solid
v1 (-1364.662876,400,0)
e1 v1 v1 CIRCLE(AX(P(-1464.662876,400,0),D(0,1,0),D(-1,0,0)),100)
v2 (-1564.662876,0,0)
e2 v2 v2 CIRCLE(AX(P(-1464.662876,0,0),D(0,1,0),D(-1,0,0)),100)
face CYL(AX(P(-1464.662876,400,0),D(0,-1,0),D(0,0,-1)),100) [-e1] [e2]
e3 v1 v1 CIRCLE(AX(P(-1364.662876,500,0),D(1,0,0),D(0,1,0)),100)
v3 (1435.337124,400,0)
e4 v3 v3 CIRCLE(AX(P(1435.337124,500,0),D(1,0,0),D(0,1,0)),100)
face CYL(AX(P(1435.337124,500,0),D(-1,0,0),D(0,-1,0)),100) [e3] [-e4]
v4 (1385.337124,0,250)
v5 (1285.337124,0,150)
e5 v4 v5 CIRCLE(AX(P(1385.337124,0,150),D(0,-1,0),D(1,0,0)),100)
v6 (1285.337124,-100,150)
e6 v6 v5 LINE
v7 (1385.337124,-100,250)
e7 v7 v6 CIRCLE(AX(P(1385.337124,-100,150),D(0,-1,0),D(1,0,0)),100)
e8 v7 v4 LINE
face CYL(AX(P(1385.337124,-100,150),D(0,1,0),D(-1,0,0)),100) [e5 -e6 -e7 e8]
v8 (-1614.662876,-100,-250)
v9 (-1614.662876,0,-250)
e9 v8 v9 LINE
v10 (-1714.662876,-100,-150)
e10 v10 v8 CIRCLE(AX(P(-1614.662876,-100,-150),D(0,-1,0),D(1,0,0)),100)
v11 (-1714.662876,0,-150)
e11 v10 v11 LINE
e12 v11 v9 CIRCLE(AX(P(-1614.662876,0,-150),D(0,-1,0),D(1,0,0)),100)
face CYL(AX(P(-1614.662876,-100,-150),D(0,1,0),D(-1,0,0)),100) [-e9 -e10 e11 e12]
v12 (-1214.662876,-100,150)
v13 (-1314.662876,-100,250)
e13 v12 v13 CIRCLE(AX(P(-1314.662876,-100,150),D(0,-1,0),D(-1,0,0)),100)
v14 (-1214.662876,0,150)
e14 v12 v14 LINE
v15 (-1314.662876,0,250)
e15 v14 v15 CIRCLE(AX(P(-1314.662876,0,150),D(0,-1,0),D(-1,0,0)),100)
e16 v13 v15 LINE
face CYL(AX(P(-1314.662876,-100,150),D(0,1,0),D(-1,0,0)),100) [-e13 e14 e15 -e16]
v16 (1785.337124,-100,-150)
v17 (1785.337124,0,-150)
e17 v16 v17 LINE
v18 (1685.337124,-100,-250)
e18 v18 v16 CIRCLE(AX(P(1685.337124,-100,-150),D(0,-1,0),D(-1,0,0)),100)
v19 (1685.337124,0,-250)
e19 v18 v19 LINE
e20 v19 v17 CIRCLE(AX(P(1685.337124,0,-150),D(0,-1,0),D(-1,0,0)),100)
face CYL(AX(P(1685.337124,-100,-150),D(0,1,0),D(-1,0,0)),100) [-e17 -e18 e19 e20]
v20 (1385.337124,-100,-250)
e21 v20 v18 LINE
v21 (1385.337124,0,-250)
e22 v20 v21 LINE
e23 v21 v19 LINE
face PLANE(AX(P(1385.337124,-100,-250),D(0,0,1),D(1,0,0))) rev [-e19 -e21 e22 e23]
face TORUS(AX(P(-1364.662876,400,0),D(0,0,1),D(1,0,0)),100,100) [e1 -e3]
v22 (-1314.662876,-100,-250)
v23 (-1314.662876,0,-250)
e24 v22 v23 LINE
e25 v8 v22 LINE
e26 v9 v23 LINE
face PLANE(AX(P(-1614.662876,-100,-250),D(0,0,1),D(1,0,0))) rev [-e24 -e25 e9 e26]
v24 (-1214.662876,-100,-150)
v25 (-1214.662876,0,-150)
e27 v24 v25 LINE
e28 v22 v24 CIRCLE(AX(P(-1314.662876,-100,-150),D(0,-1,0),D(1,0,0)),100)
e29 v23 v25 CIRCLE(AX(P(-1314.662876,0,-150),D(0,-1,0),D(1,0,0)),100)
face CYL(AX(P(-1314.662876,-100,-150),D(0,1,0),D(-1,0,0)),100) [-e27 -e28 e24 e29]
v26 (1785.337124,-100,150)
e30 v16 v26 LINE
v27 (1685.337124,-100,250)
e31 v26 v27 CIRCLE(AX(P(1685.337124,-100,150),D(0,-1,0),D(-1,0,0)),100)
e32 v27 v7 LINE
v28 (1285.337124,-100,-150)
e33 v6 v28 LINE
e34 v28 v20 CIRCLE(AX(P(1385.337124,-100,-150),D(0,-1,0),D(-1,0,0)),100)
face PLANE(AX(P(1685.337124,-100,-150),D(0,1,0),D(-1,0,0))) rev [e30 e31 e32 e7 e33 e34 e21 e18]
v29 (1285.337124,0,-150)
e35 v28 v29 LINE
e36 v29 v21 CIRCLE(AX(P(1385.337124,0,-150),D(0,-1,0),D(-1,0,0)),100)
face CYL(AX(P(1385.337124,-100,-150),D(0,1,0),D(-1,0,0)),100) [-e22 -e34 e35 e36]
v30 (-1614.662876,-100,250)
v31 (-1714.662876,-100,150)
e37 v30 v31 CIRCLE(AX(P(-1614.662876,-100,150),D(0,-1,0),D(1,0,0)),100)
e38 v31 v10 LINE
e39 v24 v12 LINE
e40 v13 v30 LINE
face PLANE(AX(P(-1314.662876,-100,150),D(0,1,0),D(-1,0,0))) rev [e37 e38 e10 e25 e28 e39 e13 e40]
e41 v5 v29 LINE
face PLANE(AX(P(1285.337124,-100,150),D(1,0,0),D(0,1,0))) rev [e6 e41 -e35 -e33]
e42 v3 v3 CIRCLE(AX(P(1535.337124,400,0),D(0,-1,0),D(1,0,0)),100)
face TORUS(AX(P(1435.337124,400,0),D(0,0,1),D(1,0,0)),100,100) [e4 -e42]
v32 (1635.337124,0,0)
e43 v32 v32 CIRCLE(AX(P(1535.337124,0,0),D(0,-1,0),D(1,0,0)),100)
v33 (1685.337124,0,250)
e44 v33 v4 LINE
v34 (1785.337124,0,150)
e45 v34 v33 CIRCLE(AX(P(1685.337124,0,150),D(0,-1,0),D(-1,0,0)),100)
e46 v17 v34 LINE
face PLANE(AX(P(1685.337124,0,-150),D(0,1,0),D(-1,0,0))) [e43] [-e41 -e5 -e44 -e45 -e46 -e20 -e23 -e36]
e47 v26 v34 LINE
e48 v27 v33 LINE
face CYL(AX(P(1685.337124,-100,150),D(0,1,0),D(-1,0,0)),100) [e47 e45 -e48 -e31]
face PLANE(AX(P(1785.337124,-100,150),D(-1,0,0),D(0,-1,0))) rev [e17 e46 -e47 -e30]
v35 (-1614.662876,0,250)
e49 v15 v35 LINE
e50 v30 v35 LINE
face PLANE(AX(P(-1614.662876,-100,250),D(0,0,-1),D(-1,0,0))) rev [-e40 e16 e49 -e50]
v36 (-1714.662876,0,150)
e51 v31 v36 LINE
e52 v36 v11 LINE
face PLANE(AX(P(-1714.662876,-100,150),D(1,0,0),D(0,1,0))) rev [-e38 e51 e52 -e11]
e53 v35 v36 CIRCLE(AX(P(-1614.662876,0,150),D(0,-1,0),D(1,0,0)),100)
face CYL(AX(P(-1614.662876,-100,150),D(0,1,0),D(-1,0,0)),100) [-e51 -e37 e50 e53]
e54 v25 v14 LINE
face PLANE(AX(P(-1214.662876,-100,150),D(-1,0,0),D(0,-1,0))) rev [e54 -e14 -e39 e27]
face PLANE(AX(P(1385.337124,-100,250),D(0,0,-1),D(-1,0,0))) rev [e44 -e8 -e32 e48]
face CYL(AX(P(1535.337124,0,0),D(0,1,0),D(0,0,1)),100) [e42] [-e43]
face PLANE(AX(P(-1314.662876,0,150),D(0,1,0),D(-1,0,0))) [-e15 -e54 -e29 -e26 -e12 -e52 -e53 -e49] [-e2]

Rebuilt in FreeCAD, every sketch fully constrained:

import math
import FreeCAD as App
import Part
import Sketcher

V = App.Vector
Q = App.Units.Quantity

doc = App.newDocument("Part")
params = doc.addObject("Spreadsheet::Sheet", "Params")
for row, (alias, value) in enumerate([
    ("sketch1_diameter", "200 mm"),
    ("sketch2_radius", "100 mm"),
    ("sketch2_width", "2800 mm"),
    ("sketch2_height", "400 mm"),
    ("sketch3_radius", "100 mm"),
    ("sketch3_width", "300 mm"),
    ("pad1_length", "100 mm"),
], start=1):
    params.set(f"A{row}", alias)
    params.set(f"B{row}", "=" + value)
    params.setAlias(f"B{row}", alias)

body = doc.addObject("PartDesign::Body", "Body")

# Sketch on XZ plane
sketch1 = body.newObject("Sketcher::SketchObject", "Sketch")
sketch1.AttachmentSupport = (doc.getObject("XZ_Plane"), [""])
sketch1.MapMode = "FlatFace"
sketch1.addGeometry(Part.Circle(V(1535.337124, 0, 0), V(0, 0, 1), 100), False)
sketch1.addConstraint(Sketcher.Constraint("PointOnObject", 0, 3, -1))
sketch1.addConstraint(Sketcher.Constraint("Diameter", 0, Q("200 mm")))
sketch1.addConstraint(Sketcher.Constraint("DistanceX", -1, 1, 0, 3, Q("1535.337124 mm")))
sketch1.setExpression("Constraints[1]", "Params.sketch1_diameter")

# Sketch on XY plane
sketch2 = body.newObject("Sketcher::SketchObject", "Sketch001")
sketch2.AttachmentSupport = (doc.getObject("XY_Plane"), [""])
sketch2.MapMode = "FlatFace"
sketch2.addGeometry(Part.LineSegment(V(1535.337124, 0, 0), V(1535.337124, 400, 0)), False)
sketch2.addGeometry(Part.ArcOfCircle(Part.Circle(V(1435.337124, 400, 0), V(0, 0, 1), 100), math.radians(0), math.radians(90)), False)
sketch2.addGeometry(Part.LineSegment(V(1435.337124, 500, 0), V(-1364.662876, 500, 0)), False)
sketch2.addGeometry(Part.ArcOfCircle(Part.Circle(V(-1364.662876, 400, 0), V(0, 0, 1), 100), math.radians(90), math.radians(180)), False)
sketch2.addGeometry(Part.LineSegment(V(-1464.662876, 400, 0), V(-1464.662876, 0, 0)), False)
sketch2.addConstraint(Sketcher.Constraint("Tangent", 0, 2, 1, 1))
sketch2.addConstraint(Sketcher.Constraint("Tangent", 1, 2, 2, 1))
sketch2.addConstraint(Sketcher.Constraint("Tangent", 2, 2, 3, 1))
sketch2.addConstraint(Sketcher.Constraint("Tangent", 3, 2, 4, 1))
sketch2.addConstraint(Sketcher.Constraint("Vertical", 0))
sketch2.addConstraint(Sketcher.Constraint("Horizontal", 2))
sketch2.addConstraint(Sketcher.Constraint("Vertical", 4))
sketch2.addConstraint(Sketcher.Constraint("Equal", 1, 3))
sketch2.addConstraint(Sketcher.Constraint("PointOnObject", 0, 1, -1))
sketch2.addConstraint(Sketcher.Constraint("PointOnObject", 4, 2, -1))
sketch2.addConstraint(Sketcher.Constraint("Radius", 1, Q("100 mm")))
sketch2.addConstraint(Sketcher.Constraint("DistanceX", 2, 2, 2, 1, Q("2800 mm")))
sketch2.addConstraint(Sketcher.Constraint("DistanceY", 0, 1, 0, 2, Q("400 mm")))
sketch2.addConstraint(Sketcher.Constraint("DistanceX", -1, 1, 1, 3, Q("1435.337124 mm")))
sketch2.setExpression("Constraints[10]", "Params.sketch2_radius")
sketch2.setExpression("Constraints[11]", "Params.sketch2_width")
sketch2.setExpression("Constraints[12]", "Params.sketch2_height")
doc.recompute()

additivepipe = body.newObject("PartDesign::AdditivePipe", "AdditivePipe")
additivepipe.Profile = sketch1
additivepipe.Spine = (sketch2, ["Edge1", "Edge2", "Edge3", "Edge4", "Edge5"])

# Sketch on XZ plane
sketch3 = body.newObject("Sketcher::SketchObject", "Sketch002")
sketch3.AttachmentSupport = (doc.getObject("XZ_Plane"), [""])
sketch3.MapMode = "FlatFace"
sketch3.addGeometry(Part.LineSegment(V(-1314.662876, 250, 0), V(-1614.662876, 250, 0)), False)
sketch3.addGeometry(Part.ArcOfCircle(Part.Circle(V(-1614.662876, 150, 0), V(0, 0, 1), 100), math.radians(90), math.radians(180)), False)
sketch3.addGeometry(Part.LineSegment(V(-1714.662876, 150, 0), V(-1714.662876, -150, 0)), False)
sketch3.addGeometry(Part.ArcOfCircle(Part.Circle(V(-1614.662876, -150, 0), V(0, 0, 1), 100), math.radians(-180), math.radians(-90)), False)
sketch3.addGeometry(Part.LineSegment(V(-1614.662876, -250, 0), V(-1314.662876, -250, 0)), False)
sketch3.addGeometry(Part.ArcOfCircle(Part.Circle(V(-1314.662876, -150, 0), V(0, 0, 1), 100), math.radians(-90), math.radians(0)), False)
sketch3.addGeometry(Part.LineSegment(V(-1214.662876, -150, 0), V(-1214.662876, 150, 0)), False)
sketch3.addGeometry(Part.ArcOfCircle(Part.Circle(V(-1314.662876, 150, 0), V(0, 0, 1), 100), math.radians(0), math.radians(90)), False)
sketch3.addGeometry(Part.LineSegment(V(1685.337124, 250, 0), V(1385.337124, 250, 0)), False)
sketch3.addGeometry(Part.ArcOfCircle(Part.Circle(V(1385.337124, 150, 0), V(0, 0, 1), 100), math.radians(90), math.radians(180)), False)
sketch3.addGeometry(Part.LineSegment(V(1285.337124, 150, 0), V(1285.337124, -150, 0)), False)
sketch3.addGeometry(Part.ArcOfCircle(Part.Circle(V(1385.337124, -150, 0), V(0, 0, 1), 100), math.radians(-180), math.radians(-90)), False)
sketch3.addGeometry(Part.LineSegment(V(1385.337124, -250, 0), V(1685.337124, -250, 0)), False)
sketch3.addGeometry(Part.ArcOfCircle(Part.Circle(V(1685.337124, -150, 0), V(0, 0, 1), 100), math.radians(-90), math.radians(0)), False)
sketch3.addGeometry(Part.LineSegment(V(1785.337124, -150, 0), V(1785.337124, 150, 0)), False)
sketch3.addGeometry(Part.ArcOfCircle(Part.Circle(V(1685.337124, 150, 0), V(0, 0, 1), 100), math.radians(0), math.radians(90)), False)
sketch3.addConstraint(Sketcher.Constraint("Tangent", 0, 2, 1, 1))
sketch3.addConstraint(Sketcher.Constraint("Tangent", 1, 2, 2, 1))
sketch3.addConstraint(Sketcher.Constraint("Tangent", 2, 2, 3, 1))
sketch3.addConstraint(Sketcher.Constraint("Tangent", 3, 2, 4, 1))
sketch3.addConstraint(Sketcher.Constraint("Tangent", 4, 2, 5, 1))
sketch3.addConstraint(Sketcher.Constraint("Tangent", 5, 2, 6, 1))
sketch3.addConstraint(Sketcher.Constraint("Tangent", 6, 2, 7, 1))
sketch3.addConstraint(Sketcher.Constraint("Tangent", 7, 2, 0, 1))
sketch3.addConstraint(Sketcher.Constraint("Tangent", 8, 2, 9, 1))
sketch3.addConstraint(Sketcher.Constraint("Tangent", 9, 2, 10, 1))
sketch3.addConstraint(Sketcher.Constraint("Tangent", 10, 2, 11, 1))
sketch3.addConstraint(Sketcher.Constraint("Tangent", 11, 2, 12, 1))
sketch3.addConstraint(Sketcher.Constraint("Tangent", 12, 2, 13, 1))
sketch3.addConstraint(Sketcher.Constraint("Tangent", 13, 2, 14, 1))
sketch3.addConstraint(Sketcher.Constraint("Tangent", 14, 2, 15, 1))
sketch3.addConstraint(Sketcher.Constraint("Tangent", 15, 2, 8, 1))
sketch3.addConstraint(Sketcher.Constraint("Horizontal", 0))
sketch3.addConstraint(Sketcher.Constraint("Vertical", 2))
sketch3.addConstraint(Sketcher.Constraint("Horizontal", 4))
sketch3.addConstraint(Sketcher.Constraint("Vertical", 6))
sketch3.addConstraint(Sketcher.Constraint("Horizontal", 8))
sketch3.addConstraint(Sketcher.Constraint("Vertical", 10))
sketch3.addConstraint(Sketcher.Constraint("Horizontal", 12))
sketch3.addConstraint(Sketcher.Constraint("Vertical", 14))
sketch3.addConstraint(Sketcher.Constraint("Equal", 1, 3))
sketch3.addConstraint(Sketcher.Constraint("Equal", 3, 5))
sketch3.addConstraint(Sketcher.Constraint("Equal", 5, 7))
sketch3.addConstraint(Sketcher.Constraint("Equal", 7, 9))
sketch3.addConstraint(Sketcher.Constraint("Equal", 9, 11))
sketch3.addConstraint(Sketcher.Constraint("Equal", 11, 13))
sketch3.addConstraint(Sketcher.Constraint("Equal", 13, 15))
sketch3.addConstraint(Sketcher.Constraint("Horizontal", 7, 3, 9, 3))
sketch3.addConstraint(Sketcher.Constraint("Horizontal", 5, 3, 11, 3))
sketch3.addConstraint(Sketcher.Constraint("Equal", 4, 8))
sketch3.addConstraint(Sketcher.Constraint("Equal", 12, 2))
sketch3.addConstraint(Sketcher.Constraint("Radius", 1, Q("100 mm")))
sketch3.addConstraint(Sketcher.Constraint("DistanceX", 0, 2, 0, 1, Q("300 mm")))
sketch3.addConstraint(Sketcher.Constraint("DistanceY", -1, 1, 1, 3, Q("150 mm")))
sketch3.addConstraint(Sketcher.Constraint("DistanceX", 7, 3, 9, 3, Q("2700 mm")))
sketch3.addConstraint(Sketcher.Constraint("DistanceX", 1, 3, -1, 1, Q("1614.662876 mm")))
sketch3.setExpression("Constraints[35]", "Params.sketch3_radius")
sketch3.setExpression("Constraints[36]", "Params.sketch3_width")
pad1 = body.newObject("PartDesign::Pad", "Pad")
pad1.Profile = sketch3
pad1.setExpression("Length", "Params.pad1_length")

doc.recompute()
